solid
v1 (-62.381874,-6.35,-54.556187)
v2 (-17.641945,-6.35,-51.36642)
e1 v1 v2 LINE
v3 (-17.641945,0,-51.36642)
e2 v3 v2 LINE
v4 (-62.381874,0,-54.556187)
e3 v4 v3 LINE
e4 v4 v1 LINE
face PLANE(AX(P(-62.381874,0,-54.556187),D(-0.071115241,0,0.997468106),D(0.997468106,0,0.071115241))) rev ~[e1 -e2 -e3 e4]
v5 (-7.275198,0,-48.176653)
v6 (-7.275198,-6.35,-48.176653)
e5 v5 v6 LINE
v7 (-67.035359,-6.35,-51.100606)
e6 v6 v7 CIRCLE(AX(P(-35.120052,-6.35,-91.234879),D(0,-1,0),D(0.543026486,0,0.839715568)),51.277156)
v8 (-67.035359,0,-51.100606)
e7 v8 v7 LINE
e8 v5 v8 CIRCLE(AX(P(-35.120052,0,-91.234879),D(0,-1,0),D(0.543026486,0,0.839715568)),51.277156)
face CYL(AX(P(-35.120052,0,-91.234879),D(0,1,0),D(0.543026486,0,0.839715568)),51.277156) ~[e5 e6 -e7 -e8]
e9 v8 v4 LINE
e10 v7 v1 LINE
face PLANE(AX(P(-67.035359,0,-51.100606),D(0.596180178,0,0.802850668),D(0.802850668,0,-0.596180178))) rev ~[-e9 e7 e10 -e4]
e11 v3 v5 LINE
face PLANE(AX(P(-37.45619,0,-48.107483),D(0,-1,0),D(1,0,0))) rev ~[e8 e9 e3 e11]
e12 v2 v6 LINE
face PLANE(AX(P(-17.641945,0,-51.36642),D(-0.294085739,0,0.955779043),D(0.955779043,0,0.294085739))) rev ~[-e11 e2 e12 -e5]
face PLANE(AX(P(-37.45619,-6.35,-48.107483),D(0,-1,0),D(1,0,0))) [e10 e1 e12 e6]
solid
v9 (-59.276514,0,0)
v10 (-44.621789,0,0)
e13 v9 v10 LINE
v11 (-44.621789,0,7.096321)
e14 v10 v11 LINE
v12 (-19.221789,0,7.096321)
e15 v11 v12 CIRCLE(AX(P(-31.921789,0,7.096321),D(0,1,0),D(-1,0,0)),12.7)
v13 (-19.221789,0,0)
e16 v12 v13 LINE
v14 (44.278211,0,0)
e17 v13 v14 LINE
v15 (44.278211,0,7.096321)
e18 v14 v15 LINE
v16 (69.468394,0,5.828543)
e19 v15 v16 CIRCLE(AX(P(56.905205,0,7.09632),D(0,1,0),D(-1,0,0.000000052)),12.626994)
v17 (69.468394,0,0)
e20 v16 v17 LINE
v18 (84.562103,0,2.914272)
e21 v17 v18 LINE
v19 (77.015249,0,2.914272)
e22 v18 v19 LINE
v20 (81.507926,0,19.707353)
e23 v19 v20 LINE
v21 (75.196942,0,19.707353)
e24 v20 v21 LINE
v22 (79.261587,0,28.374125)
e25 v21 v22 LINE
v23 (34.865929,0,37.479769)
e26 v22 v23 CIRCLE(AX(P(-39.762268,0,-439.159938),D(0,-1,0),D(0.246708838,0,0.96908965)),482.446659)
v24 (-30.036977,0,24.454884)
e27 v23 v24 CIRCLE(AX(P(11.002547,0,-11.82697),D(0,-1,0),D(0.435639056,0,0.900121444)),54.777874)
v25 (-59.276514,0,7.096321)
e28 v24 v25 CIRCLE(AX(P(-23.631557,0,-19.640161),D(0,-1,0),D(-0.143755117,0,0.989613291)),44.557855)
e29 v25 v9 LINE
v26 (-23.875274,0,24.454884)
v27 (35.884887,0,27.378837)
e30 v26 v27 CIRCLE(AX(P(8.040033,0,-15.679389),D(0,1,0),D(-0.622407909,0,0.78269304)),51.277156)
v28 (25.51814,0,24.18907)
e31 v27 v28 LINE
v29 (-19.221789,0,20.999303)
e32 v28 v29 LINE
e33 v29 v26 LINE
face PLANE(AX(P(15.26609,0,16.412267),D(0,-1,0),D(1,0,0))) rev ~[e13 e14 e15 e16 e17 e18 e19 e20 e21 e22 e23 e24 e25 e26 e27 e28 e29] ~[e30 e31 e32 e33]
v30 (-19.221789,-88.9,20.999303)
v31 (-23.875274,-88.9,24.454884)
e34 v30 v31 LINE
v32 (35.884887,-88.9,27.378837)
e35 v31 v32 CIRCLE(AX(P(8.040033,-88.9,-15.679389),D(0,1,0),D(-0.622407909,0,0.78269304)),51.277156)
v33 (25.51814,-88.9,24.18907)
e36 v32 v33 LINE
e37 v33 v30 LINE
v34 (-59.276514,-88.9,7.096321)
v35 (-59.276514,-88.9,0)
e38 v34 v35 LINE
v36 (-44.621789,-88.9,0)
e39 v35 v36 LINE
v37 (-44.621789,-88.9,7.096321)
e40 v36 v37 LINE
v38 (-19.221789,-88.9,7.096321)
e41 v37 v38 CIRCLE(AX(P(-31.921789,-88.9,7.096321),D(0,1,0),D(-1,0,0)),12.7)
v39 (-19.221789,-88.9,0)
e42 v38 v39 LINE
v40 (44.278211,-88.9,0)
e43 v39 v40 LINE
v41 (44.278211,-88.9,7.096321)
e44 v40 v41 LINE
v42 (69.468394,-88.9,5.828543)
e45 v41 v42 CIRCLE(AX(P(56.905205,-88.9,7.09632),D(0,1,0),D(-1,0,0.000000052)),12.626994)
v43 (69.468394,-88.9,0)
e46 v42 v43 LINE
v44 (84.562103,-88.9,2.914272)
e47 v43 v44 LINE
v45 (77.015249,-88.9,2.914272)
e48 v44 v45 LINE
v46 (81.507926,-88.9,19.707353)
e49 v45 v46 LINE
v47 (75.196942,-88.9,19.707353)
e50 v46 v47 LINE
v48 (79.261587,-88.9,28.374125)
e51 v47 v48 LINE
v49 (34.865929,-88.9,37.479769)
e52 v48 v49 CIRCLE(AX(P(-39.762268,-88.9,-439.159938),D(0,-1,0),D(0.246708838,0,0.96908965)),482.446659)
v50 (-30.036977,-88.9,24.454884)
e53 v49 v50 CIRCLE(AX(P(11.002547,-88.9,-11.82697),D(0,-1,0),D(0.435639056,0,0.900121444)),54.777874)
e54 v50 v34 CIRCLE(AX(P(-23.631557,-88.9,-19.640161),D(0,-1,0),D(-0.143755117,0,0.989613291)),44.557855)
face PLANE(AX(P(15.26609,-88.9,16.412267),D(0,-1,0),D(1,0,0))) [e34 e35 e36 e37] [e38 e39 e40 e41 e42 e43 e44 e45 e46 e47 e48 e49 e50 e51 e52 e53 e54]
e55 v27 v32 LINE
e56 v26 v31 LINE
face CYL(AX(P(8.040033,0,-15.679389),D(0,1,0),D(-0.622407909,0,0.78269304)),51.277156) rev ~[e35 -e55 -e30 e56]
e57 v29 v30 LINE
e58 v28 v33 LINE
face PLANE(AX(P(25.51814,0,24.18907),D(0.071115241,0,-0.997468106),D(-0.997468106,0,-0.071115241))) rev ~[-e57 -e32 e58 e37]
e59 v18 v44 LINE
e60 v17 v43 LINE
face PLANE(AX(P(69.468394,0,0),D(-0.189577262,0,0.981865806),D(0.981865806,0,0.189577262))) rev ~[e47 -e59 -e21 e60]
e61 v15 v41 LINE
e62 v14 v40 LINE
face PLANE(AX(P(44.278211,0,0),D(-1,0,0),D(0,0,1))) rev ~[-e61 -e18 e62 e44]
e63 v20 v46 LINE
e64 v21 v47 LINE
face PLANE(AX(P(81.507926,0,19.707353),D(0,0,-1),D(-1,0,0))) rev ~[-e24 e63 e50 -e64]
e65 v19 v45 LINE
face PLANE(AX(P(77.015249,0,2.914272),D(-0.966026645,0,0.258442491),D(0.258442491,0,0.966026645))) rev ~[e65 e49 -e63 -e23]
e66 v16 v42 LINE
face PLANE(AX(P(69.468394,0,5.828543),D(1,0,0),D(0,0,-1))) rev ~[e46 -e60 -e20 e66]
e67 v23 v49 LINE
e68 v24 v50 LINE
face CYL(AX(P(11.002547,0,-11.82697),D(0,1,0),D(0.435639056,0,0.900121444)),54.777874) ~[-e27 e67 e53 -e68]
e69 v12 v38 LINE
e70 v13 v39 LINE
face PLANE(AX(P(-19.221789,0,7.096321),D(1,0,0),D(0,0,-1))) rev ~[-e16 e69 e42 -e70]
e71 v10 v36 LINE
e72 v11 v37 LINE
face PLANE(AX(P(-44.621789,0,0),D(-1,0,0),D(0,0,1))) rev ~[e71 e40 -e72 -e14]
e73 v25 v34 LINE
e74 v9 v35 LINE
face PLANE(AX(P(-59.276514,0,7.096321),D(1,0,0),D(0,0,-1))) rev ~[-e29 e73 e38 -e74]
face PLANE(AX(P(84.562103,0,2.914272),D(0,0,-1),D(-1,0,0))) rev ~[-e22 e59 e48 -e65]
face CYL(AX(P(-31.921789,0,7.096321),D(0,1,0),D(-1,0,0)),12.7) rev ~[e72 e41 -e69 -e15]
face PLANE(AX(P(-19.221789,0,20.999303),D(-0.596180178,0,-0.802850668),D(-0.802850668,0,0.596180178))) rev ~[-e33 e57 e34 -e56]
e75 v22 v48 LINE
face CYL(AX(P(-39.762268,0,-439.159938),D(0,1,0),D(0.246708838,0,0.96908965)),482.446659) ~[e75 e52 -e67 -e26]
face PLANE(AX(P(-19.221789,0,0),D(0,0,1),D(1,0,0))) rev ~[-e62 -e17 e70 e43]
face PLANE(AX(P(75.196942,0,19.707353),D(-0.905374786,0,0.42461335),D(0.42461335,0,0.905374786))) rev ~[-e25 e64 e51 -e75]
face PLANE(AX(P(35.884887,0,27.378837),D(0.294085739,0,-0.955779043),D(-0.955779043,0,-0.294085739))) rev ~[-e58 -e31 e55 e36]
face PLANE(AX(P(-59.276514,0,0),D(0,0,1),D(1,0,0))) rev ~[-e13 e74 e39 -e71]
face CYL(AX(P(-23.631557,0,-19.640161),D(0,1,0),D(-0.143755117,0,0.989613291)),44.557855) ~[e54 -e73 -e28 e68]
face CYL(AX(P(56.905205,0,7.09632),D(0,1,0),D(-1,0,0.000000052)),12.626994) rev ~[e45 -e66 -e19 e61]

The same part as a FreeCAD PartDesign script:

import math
import FreeCAD as App
import Part
import Sketcher
from FreeCAD import Vector
Q = App.Units.Quantity

doc = App.newDocument("Part")
body = doc.addObject("PartDesign::Body", "Body")

# Sketch on XZ plane
sketch1 = body.newObject("Sketcher::SketchObject", "Sketch")
sketch1.AttachmentSupport = (doc.getObject("XZ_Plane"), [""])
sketch1.MapMode = "FlatFace"
sketch1.addGeometry([
    Part.LineSegment(Vector(-59.276514, 0, 0), Vector(-44.621789, 0, 0)),  # 0
    Part.LineSegment(Vector(-44.621789, 0, 0), Vector(-44.621789, 7.096321, 0)),  # 1
    Part.ArcOfCircle(Part.Circle(Vector(-31.921789, 7.096321, 0), Vector(0, 0, 1), 12.7), math.radians(0), math.radians(180)),  # 2
    Part.LineSegment(Vector(-19.221789, 7.096321, 0), Vector(-19.221789, 0, 0)),  # 3
    Part.LineSegment(Vector(-19.221789, 0, 0), Vector(44.278211, 0, 0)),  # 4
    Part.LineSegment(Vector(44.278211, 0, 0), Vector(44.278211, 7.096321, 0)),  # 5
    Part.ArcOfCircle(Part.Circle(Vector(56.905205, 7.09632, 0), Vector(0, 0, 1), 12.626994), math.radians(-5.762329), math.radians(179.999997)),  # 6
    Part.LineSegment(Vector(69.468394, 5.828543, 0), Vector(69.468394, 0, 0)),  # 7
    Part.LineSegment(Vector(69.468394, 0, 0), Vector(84.562103, 2.914272, 0)),  # 8
    Part.LineSegment(Vector(84.562103, 2.914272, 0), Vector(77.015249, 2.914272, 0)),  # 9
    Part.LineSegment(Vector(77.015249, 2.914272, 0), Vector(81.507926, 19.707353, 0)),  # 10
    Part.LineSegment(Vector(81.507926, 19.707353, 0), Vector(75.196942, 19.707353, 0)),  # 11
    Part.LineSegment(Vector(75.196942, 19.707353, 0), Vector(79.261587, 28.374125, 0)),  # 12
    Part.ArcOfCircle(Part.Circle(Vector(-39.762268, -439.159938, 0), Vector(0, 0, 1), 482.446659), math.radians(75.717157), math.radians(81.10136)),  # 13
    Part.ArcOfCircle(Part.Circle(Vector(11.002547, -11.82697, 0), Vector(0, 0, 1), 54.777874), math.radians(64.174035), math.radians(138.521034)),  # 14
    Part.ArcOfCircle(Part.Circle(Vector(-23.631557, -19.640161, 0), Vector(0, 0, 1), 44.557855), math.radians(98.265197), math.radians(143.127258)),  # 15
    Part.LineSegment(Vector(-59.276514, 7.096321, 0), Vector(-59.276514, 0, 0)),  # 16
    Part.LineSegment(Vector(25.51814, 24.18907, 0), Vector(-19.221789, 20.999303, 0)),  # 17
    Part.LineSegment(Vector(-19.221789, 20.999303, 0), Vector(-23.875274, 24.454884, 0)),  # 18
    Part.ArcOfCircle(Part.Circle(Vector(8.040033, -15.679389, 0), Vector(0, 0, 1), 51.277156), math.radians(57.110096), math.radians(128.492187)),  # 19
    Part.LineSegment(Vector(35.884887, 27.378837, 0), Vector(25.51814, 24.18907, 0)),  # 20
], False)
sketch1.addConstraint([
    Sketcher.Constraint("Coincident", 0, 2, 1, 1),
    Sketcher.Constraint("Tangent", 1, 2, 2, 2),
    Sketcher.Constraint("Tangent", 2, 1, 3, 1),
    Sketcher.Constraint("Coincident", 3, 2, 4, 1),
    Sketcher.Constraint("Coincident", 4, 2, 5, 1),
    Sketcher.Constraint("Tangent", 5, 2, 6, 2),
    Sketcher.Constraint("Coincident", 6, 1, 7, 1),
    Sketcher.Constraint("Coincident", 7, 2, 8, 1),
    Sketcher.Constraint("Coincident", 8, 2, 9, 1),
    Sketcher.Constraint("Coincident", 9, 2, 10, 1),
    Sketcher.Constraint("Coincident", 10, 2, 11, 1),
    Sketcher.Constraint("Coincident", 11, 2, 12, 1),
    Sketcher.Constraint("Coincident", 12, 2, 13, 1),
    Sketcher.Constraint("Coincident", 13, 2, 14, 1),
    Sketcher.Constraint("Coincident", 14, 2, 15, 1),
    Sketcher.Constraint("Coincident", 15, 2, 16, 1),
    Sketcher.Constraint("Coincident", 16, 2, 0, 1),
    Sketcher.Constraint("Coincident", 17, 2, 18, 1),
    Sketcher.Constraint("Coincident", 18, 2, 19, 2),
    Sketcher.Constraint("Coincident", 19, 1, 20, 1),
    Sketcher.Constraint("Coincident", 20, 2, 17, 1),
    Sketcher.Constraint("Horizontal", 0),
    Sketcher.Constraint("Vertical", 1),
    Sketcher.Constraint("Vertical", 3),
    Sketcher.Constraint("Horizontal", 4),
    Sketcher.Constraint("Vertical", 5),
    Sketcher.Constraint("Vertical", 7),
    Sketcher.Constraint("Horizontal", 9),
    Sketcher.Constraint("Horizontal", 11),
    Sketcher.Constraint("Vertical", 16),
    Sketcher.Constraint("PointOnObject", 0, 2, -1),
    Sketcher.Constraint("PointOnObject", 3, 2, -1),
    Sketcher.Constraint("PointOnObject", 7, 2, -1),
    Sketcher.Constraint("Horizontal", 2, 3, 6, 3),
    Sketcher.Constraint("Horizontal", 5, 2, 15, 2),
    Sketcher.Constraint("Horizontal", 14, 2, 18, 2),
    Sketcher.Constraint("Vertical", 3, 2, 17, 2),
    Sketcher.Constraint("Radius", 2, Q("0.5 in")),
    Sketcher.Constraint("DistanceX", 4, 1, 4, 2, Q("2.5 in")),
    Sketcher.Constraint("Radius", 13, 482.446659),
    Sketcher.Constraint("Radius", 6, 12.626994),
    Sketcher.Constraint("Radius", 14, 54.777874),
    Sketcher.Constraint("Radius", 15, 44.557855),
    Sketcher.Constraint("Radius", 19, 51.277156),
    Sketcher.Constraint("DistanceX", 2, 3, 19, 3, Q("1.5733001 in")),
    Sketcher.Constraint("DistanceY", 1, 1, 1, 2, 7.096321),
    Sketcher.Constraint("DistanceX", 13, 3, 19, 3, 47.802301),
    Sketcher.Constraint("DistanceX", 6, 3, 8, 2, 27.656898),
    Sketcher.Constraint("DistanceY", 20, 2, 13, 2, 13.290699),
    Sketcher.Constraint("Distance", 12, 9.572579),
    Sketcher.Constraint("DistanceX", 0, 1, 0, 2, 14.654725),
    Sketcher.Constraint("DistanceX", 9, 2, 9, 1, 7.546854),
    Sketcher.Constraint("DistanceX", 11, 2, 11, 1, 6.310984),
    Sketcher.Constraint("DistanceY", 7, 2, 7, 1, 5.828543),
    Sketcher.Constraint("DistanceX", 2, 3, -1, 1, 31.921789),
    Sketcher.Constraint("DistanceY", 13, 3, -1, 1, 439.159938),
    Sketcher.Constraint("DistanceY", 14, 3, -1, 1, 11.82697),
    Sketcher.Constraint("DistanceY", 15, 3, -1, 1, 19.640161),
    Sketcher.Constraint("DistanceY", 19, 3, -1, 1, 15.679389),
    Sketcher.Constraint("DistanceY", -1, 1, 8, 2, 2.914272),
    Sketcher.Constraint("DistanceX", -1, 1, 13, 2, 34.865929),
    Sketcher.Constraint("DistanceX", -1, 1, 20, 2, 25.51814),
    Sketcher.Constraint("DistanceY", 8, 2, 10, 2, 16.793081),
    Sketcher.Constraint("DistanceX", 7, 2, 10, 2, 12.039532),
    Sketcher.Constraint("DistanceY", 17, 2, 14, 2, 3.455581),
    Sketcher.Constraint("DistanceY", 19, 1, 13, 2, 10.100932),
])
pad1 = body.newObject("PartDesign::Pad", "Pad")
pad1.Profile = sketch1
pad1.Length = Q("3.5 in")
body2 = doc.addObject("PartDesign::Body", "Body001")

# Sketch on XZ plane
sketch2 = body2.newObject("Sketcher::SketchObject", "Sketch001")
sketch2.AttachmentSupport = (doc.getObject("XZ_Plane001"), [""])
sketch2.MapMode = "FlatFace"
sketch2.addGeometry([
    Part.ArcOfCircle(Part.Circle(Vector(-35.120052, -91.234879, 0), Vector(0, 0, 1), 51.277156), math.radians(57.110097), math.radians(128.492187)),
    Part.LineSegment(Vector(-67.035359, -51.100606, 0), Vector(-62.381874, -54.556187, 0)),
    Part.LineSegment(Vector(-62.381874, -54.556187, 0), Vector(-17.641945, -51.36642, 0)),
    Part.LineSegment(Vector(-17.641945, -51.36642, 0), Vector(-7.275198, -48.176653, 0)),
], False)
sketch2.addConstraint([
    Sketcher.Constraint("Coincident", 0, 2, 1, 1),
    Sketcher.Constraint("Coincident", 1, 2, 2, 1),
    Sketcher.Constraint("Coincident", 2, 2, 3, 1),
    Sketcher.Constraint("Coincident", 3, 2, 0, 1),
    Sketcher.Constraint("DistanceY", 2, 2, -1, 1, Q("2.0223 in")),
    Sketcher.Constraint("Radius", 0, 51.277156),
    Sketcher.Constraint("DistanceX", 1, 2, 0, 3, Q("1.0733001 in")),
    Sketcher.Constraint("DistanceX", 0, 3, -1, 1, 35.120052),
    Sketcher.Constraint("DistanceY", 0, 3, -1, 1, 91.234879),
    Sketcher.Constraint("DistanceX", 0, 2, -1, 1, 67.035359),
    Sketcher.Constraint("DistanceY", 1, 2, 0, 2, 3.455581),
    Sketcher.Constraint("DistanceX", 1, 2, 2, 2, 44.739929),
    Sketcher.Constraint("DistanceX", 0, 2, 3, 2, 59.760161),
])
pad2 = body2.newObject("PartDesign::Pad", "Pad001")
pad2.Profile = sketch2
pad2.Length = Q("0.25 in")

doc.recompute()
